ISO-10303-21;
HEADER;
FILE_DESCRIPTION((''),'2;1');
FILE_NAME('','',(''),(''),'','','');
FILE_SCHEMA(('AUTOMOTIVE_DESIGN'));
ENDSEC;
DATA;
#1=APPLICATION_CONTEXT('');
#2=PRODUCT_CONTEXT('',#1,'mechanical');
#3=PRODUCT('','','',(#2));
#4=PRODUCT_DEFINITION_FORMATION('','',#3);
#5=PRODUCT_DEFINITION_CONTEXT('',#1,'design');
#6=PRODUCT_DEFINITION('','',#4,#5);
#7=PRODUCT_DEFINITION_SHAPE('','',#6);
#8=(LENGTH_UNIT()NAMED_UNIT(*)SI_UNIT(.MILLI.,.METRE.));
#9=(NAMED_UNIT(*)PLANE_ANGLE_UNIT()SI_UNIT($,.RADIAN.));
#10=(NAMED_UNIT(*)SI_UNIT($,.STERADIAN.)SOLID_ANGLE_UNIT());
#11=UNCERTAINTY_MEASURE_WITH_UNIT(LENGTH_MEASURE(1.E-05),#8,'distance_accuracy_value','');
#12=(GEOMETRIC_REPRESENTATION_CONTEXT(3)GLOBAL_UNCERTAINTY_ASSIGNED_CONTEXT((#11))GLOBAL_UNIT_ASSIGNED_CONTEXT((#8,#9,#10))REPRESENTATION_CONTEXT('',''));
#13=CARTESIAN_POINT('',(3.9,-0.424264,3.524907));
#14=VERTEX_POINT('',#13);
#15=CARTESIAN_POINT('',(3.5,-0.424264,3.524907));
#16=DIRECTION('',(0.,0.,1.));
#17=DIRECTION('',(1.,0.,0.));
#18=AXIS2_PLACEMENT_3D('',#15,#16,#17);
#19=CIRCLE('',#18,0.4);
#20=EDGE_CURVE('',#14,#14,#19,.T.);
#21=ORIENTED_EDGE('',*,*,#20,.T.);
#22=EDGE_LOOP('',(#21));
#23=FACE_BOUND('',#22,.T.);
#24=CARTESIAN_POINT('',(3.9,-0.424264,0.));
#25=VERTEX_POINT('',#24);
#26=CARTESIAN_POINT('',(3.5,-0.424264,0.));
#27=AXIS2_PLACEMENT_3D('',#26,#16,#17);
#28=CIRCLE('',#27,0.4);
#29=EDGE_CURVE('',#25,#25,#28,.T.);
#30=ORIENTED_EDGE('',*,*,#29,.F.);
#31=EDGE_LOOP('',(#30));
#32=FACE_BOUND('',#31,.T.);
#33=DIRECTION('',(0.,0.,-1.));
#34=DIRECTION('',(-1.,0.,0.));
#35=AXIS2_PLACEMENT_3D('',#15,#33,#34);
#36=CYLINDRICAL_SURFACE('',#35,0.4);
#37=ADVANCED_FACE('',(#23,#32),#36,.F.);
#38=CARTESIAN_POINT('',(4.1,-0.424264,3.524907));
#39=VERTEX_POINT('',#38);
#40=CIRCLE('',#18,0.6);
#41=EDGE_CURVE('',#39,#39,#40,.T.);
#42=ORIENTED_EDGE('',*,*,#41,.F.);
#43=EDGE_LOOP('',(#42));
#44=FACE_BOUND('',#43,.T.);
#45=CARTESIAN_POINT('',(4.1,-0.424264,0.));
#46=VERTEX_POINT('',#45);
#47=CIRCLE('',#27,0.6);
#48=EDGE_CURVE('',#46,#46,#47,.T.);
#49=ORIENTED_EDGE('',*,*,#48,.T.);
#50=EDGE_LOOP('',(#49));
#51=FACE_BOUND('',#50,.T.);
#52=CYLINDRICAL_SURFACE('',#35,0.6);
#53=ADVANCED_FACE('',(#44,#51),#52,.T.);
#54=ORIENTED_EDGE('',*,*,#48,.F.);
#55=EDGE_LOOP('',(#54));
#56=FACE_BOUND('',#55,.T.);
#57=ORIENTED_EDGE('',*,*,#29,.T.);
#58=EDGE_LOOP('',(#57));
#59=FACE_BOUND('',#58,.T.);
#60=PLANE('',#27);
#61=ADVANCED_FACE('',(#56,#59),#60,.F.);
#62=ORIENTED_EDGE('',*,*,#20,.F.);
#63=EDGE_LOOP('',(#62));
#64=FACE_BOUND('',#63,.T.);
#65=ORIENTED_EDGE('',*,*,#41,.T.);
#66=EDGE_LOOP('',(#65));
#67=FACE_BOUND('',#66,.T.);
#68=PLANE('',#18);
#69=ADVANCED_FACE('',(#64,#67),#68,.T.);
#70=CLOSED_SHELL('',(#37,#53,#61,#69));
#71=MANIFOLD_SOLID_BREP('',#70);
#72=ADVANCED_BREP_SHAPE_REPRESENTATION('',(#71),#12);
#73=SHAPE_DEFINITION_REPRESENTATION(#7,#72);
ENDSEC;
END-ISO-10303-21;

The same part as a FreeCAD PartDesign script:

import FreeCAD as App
import Part
import Sketcher

V = App.Vector
Q = App.Units.Quantity

doc = App.newDocument("Part")
body = doc.addObject("PartDesign::Body", "Body")

sketch1 = body.newObject("Sketcher::SketchObject", "Sketch")
sketch1.AttachmentSupport = (doc.getObject("XY_Plane"), [""])
sketch1.MapMode = "FlatFace"
sketch1.addGeometry(Part.Circle(V(3.5, -0.424264, 0), V(0, 0, 1), 0.6), False)
sketch1.addGeometry(Part.Circle(V(3.5, -0.424264, 0), V(0, 0, 1), 0.4), False)
sketch1.addConstraint(Sketcher.Constraint("Coincident", 1, 3, 0, 3))
sketch1.addConstraint(Sketcher.Constraint("Diameter", 0, Q("1.2 mm")))
sketch1.addConstraint(Sketcher.Constraint("Diameter", 1, Q("0.8 mm")))
sketch1.addConstraint(Sketcher.Constraint("DistanceX", -1, 1, 0, 3, Q("3.5 mm")))
sketch1.addConstraint(Sketcher.Constraint("DistanceY", 0, 3, -1, 1, Q("0.424264 mm")))
pad1 = body.newObject("PartDesign::Pad", "Pad")
pad1.Profile = sketch1
pad1.Length = 3.524907

doc.recompute()
